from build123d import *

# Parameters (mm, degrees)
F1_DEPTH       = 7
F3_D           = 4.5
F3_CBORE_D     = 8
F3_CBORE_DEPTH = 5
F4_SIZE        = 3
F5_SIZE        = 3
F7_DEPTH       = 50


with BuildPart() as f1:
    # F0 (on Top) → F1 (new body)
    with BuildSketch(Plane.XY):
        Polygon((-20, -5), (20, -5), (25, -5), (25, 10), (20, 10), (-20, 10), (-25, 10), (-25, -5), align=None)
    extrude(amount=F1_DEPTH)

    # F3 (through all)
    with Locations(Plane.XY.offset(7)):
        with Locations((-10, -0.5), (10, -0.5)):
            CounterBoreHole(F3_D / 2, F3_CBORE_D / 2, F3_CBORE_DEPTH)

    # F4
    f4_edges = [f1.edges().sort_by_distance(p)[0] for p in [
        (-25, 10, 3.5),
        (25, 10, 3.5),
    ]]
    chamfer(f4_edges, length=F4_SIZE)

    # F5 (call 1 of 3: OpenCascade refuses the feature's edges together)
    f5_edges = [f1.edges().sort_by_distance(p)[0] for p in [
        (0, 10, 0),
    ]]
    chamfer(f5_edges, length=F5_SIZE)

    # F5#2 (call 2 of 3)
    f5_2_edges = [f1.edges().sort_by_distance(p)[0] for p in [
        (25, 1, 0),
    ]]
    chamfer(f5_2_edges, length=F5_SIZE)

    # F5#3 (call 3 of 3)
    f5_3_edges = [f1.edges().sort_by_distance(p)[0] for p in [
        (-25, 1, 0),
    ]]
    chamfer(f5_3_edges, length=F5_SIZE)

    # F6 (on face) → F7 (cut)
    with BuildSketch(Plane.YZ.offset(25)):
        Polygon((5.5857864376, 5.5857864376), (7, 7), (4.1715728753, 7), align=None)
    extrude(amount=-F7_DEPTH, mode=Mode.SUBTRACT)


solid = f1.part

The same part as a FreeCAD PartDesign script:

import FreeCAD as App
import Part
import Sketcher

V = App.Vector


def edges_at(feature, points):
    """Names of the edges that pass closest to the given points."""
    edges = feature.Shape.Edges
    near = lambda p: min(range(len(edges)), key=lambda i: edges[i].distToShape(Part.Vertex(*p))[0])
    return sorted({f"Edge{near(p) + 1}" for p in points})


def add_polygon(sketch, points):
    """Adds a closed chain of lines whose ends are joined by coincident constraints."""
    first, n = sketch.GeometryCount, len(points)
    for a, b in zip(points, points[1:] + points[:1]):
        sketch.addGeometry(Part.LineSegment(App.Vector(*a, 0), App.Vector(*b, 0)), False)
    for i in range(n):
        sketch.addConstraint(Sketcher.Constraint("Coincident", first + i, 2, first + (i + 1) % n, 1))

doc = App.newDocument("Part")
body = doc.addObject("PartDesign::Body", "Body")

sketch1 = doc.addObject("Sketcher::SketchObject", "Sketch")
body.addObject(sketch1)
sketch1.AttachmentSupport = (doc.XY_Plane, [""])
sketch1.MapMode = "FlatFace"
add_polygon(sketch1, [(25, -5), (25, 10), (-25, 10), (-25, -5)])
sketch1.addConstraint([
    Sketcher.Constraint("Vertical", 0),
    Sketcher.Constraint("Horizontal", 1),
    Sketcher.Constraint("Vertical", 2),
    Sketcher.Constraint("Horizontal", 3),
    Sketcher.Constraint("DistanceX", 1, 2, 1, 1, 50.0),
    Sketcher.Constraint("DistanceY", 0, 1, 0, 2, 15.0),
    Sketcher.Constraint("DistanceX", -1, 1, 0, 2, 25.0),
    Sketcher.Constraint("DistanceY", -1, 1, 0, 2, 10.0),
])
pad1 = doc.addObject("PartDesign::Pad", "Pad")
body.addObject(pad1)
pad1.Profile = sketch1
pad1.Length = 7

sketch2 = doc.addObject("Sketcher::SketchObject", "Sketch001")
body.addObject(sketch2)
sketch2.AttachmentSupport = (doc.XY_Plane, [""])
sketch2.MapMode = "FlatFace"
sketch2.AttachmentOffset = App.Placement(V(0, 0, 7), App.Rotation())
sketch2.addGeometry([
    Part.Circle(V(-10, -0.5, 0), V(0, 0, 1), 2.2),
    Part.Circle(V(10, -0.5, 0), V(0, 0, 1), 2.2),
], False)
sketch2.addConstraint([
    Sketcher.Constraint("Equal", 0, 1),
    Sketcher.Constraint("Symmetric", 0, 3, 1, 3, -2),
    Sketcher.Constraint("Diameter", 0, 4.5),
    Sketcher.Constraint("DistanceX", 0, 3, -1, 1, 10.0),
    Sketcher.Constraint("DistanceY", 0, 3, -1, 1, 0.5),
])
doc.recompute()
hole = doc.addObject("PartDesign::Hole", "Hole")
body.addObject(hole)
hole.Profile = sketch2
hole.ThreadType = "None"
hole.Diameter = 4.5
hole.DepthType = "ThroughAll"
hole.HoleCutType = "Counterbore"
hole.HoleCutDiameter = 8
hole.HoleCutDepth = 5
doc.recompute()

chamfer = doc.addObject("PartDesign::Chamfer", "Chamfer")
body.addObject(chamfer)
chamfer.Base = (hole, edges_at(hole, [(-25, 10, 3.5), (25, 10, 3.5)]))
chamfer.Size = 3
doc.recompute()

chamfer2 = doc.addObject("PartDesign::Chamfer", "Chamfer001")
body.addObject(chamfer2)
chamfer2.Base = (chamfer, edges_at(chamfer, [(0, 10, 0)]))
chamfer2.Size = 3
doc.recompute()

chamfer3 = doc.addObject("PartDesign::Chamfer", "Chamfer002")
body.addObject(chamfer3)
chamfer3.Base = (chamfer2, edges_at(chamfer2, [(25, 1, 0)]))
chamfer3.Size = 3
doc.recompute()

chamfer4 = doc.addObject("PartDesign::Chamfer", "Chamfer003")
body.addObject(chamfer4)
chamfer4.Base = (chamfer3, edges_at(chamfer3, [(-25, 1, 0)]))
chamfer4.Size = 3

sketch3 = doc.addObject("Sketcher::SketchObject", "Sketch002")
body.addObject(sketch3)
sketch3.AttachmentSupport = (doc.YZ_Plane, [""])
sketch3.MapMode = "FlatFace"
sketch3.AttachmentOffset = App.Placement(V(0, 0, 25), App.Rotation())
add_polygon(sketch3, [(5.6, 5.6), (7, 7), (4.2, 7)])
sketch3.addConstraint([
    Sketcher.Constraint("Horizontal", 1),
    Sketcher.Constraint("Perpendicular", 0, 2),
    Sketcher.Constraint("Equal", 0, 2),
    Sketcher.Constraint("Distance", 0, 2.0),
    Sketcher.Constraint("DistanceX", -1, 1, 0, 2, 7.0),
    Sketcher.Constraint("DistanceY", -1, 1, 0, 2, 7.0),
])
pocket1 = doc.addObject("PartDesign::Pocket", "Pocket")
body.addObject(pocket1)
pocket1.Profile = sketch3
pocket1.Length = 50

doc.recompute()
